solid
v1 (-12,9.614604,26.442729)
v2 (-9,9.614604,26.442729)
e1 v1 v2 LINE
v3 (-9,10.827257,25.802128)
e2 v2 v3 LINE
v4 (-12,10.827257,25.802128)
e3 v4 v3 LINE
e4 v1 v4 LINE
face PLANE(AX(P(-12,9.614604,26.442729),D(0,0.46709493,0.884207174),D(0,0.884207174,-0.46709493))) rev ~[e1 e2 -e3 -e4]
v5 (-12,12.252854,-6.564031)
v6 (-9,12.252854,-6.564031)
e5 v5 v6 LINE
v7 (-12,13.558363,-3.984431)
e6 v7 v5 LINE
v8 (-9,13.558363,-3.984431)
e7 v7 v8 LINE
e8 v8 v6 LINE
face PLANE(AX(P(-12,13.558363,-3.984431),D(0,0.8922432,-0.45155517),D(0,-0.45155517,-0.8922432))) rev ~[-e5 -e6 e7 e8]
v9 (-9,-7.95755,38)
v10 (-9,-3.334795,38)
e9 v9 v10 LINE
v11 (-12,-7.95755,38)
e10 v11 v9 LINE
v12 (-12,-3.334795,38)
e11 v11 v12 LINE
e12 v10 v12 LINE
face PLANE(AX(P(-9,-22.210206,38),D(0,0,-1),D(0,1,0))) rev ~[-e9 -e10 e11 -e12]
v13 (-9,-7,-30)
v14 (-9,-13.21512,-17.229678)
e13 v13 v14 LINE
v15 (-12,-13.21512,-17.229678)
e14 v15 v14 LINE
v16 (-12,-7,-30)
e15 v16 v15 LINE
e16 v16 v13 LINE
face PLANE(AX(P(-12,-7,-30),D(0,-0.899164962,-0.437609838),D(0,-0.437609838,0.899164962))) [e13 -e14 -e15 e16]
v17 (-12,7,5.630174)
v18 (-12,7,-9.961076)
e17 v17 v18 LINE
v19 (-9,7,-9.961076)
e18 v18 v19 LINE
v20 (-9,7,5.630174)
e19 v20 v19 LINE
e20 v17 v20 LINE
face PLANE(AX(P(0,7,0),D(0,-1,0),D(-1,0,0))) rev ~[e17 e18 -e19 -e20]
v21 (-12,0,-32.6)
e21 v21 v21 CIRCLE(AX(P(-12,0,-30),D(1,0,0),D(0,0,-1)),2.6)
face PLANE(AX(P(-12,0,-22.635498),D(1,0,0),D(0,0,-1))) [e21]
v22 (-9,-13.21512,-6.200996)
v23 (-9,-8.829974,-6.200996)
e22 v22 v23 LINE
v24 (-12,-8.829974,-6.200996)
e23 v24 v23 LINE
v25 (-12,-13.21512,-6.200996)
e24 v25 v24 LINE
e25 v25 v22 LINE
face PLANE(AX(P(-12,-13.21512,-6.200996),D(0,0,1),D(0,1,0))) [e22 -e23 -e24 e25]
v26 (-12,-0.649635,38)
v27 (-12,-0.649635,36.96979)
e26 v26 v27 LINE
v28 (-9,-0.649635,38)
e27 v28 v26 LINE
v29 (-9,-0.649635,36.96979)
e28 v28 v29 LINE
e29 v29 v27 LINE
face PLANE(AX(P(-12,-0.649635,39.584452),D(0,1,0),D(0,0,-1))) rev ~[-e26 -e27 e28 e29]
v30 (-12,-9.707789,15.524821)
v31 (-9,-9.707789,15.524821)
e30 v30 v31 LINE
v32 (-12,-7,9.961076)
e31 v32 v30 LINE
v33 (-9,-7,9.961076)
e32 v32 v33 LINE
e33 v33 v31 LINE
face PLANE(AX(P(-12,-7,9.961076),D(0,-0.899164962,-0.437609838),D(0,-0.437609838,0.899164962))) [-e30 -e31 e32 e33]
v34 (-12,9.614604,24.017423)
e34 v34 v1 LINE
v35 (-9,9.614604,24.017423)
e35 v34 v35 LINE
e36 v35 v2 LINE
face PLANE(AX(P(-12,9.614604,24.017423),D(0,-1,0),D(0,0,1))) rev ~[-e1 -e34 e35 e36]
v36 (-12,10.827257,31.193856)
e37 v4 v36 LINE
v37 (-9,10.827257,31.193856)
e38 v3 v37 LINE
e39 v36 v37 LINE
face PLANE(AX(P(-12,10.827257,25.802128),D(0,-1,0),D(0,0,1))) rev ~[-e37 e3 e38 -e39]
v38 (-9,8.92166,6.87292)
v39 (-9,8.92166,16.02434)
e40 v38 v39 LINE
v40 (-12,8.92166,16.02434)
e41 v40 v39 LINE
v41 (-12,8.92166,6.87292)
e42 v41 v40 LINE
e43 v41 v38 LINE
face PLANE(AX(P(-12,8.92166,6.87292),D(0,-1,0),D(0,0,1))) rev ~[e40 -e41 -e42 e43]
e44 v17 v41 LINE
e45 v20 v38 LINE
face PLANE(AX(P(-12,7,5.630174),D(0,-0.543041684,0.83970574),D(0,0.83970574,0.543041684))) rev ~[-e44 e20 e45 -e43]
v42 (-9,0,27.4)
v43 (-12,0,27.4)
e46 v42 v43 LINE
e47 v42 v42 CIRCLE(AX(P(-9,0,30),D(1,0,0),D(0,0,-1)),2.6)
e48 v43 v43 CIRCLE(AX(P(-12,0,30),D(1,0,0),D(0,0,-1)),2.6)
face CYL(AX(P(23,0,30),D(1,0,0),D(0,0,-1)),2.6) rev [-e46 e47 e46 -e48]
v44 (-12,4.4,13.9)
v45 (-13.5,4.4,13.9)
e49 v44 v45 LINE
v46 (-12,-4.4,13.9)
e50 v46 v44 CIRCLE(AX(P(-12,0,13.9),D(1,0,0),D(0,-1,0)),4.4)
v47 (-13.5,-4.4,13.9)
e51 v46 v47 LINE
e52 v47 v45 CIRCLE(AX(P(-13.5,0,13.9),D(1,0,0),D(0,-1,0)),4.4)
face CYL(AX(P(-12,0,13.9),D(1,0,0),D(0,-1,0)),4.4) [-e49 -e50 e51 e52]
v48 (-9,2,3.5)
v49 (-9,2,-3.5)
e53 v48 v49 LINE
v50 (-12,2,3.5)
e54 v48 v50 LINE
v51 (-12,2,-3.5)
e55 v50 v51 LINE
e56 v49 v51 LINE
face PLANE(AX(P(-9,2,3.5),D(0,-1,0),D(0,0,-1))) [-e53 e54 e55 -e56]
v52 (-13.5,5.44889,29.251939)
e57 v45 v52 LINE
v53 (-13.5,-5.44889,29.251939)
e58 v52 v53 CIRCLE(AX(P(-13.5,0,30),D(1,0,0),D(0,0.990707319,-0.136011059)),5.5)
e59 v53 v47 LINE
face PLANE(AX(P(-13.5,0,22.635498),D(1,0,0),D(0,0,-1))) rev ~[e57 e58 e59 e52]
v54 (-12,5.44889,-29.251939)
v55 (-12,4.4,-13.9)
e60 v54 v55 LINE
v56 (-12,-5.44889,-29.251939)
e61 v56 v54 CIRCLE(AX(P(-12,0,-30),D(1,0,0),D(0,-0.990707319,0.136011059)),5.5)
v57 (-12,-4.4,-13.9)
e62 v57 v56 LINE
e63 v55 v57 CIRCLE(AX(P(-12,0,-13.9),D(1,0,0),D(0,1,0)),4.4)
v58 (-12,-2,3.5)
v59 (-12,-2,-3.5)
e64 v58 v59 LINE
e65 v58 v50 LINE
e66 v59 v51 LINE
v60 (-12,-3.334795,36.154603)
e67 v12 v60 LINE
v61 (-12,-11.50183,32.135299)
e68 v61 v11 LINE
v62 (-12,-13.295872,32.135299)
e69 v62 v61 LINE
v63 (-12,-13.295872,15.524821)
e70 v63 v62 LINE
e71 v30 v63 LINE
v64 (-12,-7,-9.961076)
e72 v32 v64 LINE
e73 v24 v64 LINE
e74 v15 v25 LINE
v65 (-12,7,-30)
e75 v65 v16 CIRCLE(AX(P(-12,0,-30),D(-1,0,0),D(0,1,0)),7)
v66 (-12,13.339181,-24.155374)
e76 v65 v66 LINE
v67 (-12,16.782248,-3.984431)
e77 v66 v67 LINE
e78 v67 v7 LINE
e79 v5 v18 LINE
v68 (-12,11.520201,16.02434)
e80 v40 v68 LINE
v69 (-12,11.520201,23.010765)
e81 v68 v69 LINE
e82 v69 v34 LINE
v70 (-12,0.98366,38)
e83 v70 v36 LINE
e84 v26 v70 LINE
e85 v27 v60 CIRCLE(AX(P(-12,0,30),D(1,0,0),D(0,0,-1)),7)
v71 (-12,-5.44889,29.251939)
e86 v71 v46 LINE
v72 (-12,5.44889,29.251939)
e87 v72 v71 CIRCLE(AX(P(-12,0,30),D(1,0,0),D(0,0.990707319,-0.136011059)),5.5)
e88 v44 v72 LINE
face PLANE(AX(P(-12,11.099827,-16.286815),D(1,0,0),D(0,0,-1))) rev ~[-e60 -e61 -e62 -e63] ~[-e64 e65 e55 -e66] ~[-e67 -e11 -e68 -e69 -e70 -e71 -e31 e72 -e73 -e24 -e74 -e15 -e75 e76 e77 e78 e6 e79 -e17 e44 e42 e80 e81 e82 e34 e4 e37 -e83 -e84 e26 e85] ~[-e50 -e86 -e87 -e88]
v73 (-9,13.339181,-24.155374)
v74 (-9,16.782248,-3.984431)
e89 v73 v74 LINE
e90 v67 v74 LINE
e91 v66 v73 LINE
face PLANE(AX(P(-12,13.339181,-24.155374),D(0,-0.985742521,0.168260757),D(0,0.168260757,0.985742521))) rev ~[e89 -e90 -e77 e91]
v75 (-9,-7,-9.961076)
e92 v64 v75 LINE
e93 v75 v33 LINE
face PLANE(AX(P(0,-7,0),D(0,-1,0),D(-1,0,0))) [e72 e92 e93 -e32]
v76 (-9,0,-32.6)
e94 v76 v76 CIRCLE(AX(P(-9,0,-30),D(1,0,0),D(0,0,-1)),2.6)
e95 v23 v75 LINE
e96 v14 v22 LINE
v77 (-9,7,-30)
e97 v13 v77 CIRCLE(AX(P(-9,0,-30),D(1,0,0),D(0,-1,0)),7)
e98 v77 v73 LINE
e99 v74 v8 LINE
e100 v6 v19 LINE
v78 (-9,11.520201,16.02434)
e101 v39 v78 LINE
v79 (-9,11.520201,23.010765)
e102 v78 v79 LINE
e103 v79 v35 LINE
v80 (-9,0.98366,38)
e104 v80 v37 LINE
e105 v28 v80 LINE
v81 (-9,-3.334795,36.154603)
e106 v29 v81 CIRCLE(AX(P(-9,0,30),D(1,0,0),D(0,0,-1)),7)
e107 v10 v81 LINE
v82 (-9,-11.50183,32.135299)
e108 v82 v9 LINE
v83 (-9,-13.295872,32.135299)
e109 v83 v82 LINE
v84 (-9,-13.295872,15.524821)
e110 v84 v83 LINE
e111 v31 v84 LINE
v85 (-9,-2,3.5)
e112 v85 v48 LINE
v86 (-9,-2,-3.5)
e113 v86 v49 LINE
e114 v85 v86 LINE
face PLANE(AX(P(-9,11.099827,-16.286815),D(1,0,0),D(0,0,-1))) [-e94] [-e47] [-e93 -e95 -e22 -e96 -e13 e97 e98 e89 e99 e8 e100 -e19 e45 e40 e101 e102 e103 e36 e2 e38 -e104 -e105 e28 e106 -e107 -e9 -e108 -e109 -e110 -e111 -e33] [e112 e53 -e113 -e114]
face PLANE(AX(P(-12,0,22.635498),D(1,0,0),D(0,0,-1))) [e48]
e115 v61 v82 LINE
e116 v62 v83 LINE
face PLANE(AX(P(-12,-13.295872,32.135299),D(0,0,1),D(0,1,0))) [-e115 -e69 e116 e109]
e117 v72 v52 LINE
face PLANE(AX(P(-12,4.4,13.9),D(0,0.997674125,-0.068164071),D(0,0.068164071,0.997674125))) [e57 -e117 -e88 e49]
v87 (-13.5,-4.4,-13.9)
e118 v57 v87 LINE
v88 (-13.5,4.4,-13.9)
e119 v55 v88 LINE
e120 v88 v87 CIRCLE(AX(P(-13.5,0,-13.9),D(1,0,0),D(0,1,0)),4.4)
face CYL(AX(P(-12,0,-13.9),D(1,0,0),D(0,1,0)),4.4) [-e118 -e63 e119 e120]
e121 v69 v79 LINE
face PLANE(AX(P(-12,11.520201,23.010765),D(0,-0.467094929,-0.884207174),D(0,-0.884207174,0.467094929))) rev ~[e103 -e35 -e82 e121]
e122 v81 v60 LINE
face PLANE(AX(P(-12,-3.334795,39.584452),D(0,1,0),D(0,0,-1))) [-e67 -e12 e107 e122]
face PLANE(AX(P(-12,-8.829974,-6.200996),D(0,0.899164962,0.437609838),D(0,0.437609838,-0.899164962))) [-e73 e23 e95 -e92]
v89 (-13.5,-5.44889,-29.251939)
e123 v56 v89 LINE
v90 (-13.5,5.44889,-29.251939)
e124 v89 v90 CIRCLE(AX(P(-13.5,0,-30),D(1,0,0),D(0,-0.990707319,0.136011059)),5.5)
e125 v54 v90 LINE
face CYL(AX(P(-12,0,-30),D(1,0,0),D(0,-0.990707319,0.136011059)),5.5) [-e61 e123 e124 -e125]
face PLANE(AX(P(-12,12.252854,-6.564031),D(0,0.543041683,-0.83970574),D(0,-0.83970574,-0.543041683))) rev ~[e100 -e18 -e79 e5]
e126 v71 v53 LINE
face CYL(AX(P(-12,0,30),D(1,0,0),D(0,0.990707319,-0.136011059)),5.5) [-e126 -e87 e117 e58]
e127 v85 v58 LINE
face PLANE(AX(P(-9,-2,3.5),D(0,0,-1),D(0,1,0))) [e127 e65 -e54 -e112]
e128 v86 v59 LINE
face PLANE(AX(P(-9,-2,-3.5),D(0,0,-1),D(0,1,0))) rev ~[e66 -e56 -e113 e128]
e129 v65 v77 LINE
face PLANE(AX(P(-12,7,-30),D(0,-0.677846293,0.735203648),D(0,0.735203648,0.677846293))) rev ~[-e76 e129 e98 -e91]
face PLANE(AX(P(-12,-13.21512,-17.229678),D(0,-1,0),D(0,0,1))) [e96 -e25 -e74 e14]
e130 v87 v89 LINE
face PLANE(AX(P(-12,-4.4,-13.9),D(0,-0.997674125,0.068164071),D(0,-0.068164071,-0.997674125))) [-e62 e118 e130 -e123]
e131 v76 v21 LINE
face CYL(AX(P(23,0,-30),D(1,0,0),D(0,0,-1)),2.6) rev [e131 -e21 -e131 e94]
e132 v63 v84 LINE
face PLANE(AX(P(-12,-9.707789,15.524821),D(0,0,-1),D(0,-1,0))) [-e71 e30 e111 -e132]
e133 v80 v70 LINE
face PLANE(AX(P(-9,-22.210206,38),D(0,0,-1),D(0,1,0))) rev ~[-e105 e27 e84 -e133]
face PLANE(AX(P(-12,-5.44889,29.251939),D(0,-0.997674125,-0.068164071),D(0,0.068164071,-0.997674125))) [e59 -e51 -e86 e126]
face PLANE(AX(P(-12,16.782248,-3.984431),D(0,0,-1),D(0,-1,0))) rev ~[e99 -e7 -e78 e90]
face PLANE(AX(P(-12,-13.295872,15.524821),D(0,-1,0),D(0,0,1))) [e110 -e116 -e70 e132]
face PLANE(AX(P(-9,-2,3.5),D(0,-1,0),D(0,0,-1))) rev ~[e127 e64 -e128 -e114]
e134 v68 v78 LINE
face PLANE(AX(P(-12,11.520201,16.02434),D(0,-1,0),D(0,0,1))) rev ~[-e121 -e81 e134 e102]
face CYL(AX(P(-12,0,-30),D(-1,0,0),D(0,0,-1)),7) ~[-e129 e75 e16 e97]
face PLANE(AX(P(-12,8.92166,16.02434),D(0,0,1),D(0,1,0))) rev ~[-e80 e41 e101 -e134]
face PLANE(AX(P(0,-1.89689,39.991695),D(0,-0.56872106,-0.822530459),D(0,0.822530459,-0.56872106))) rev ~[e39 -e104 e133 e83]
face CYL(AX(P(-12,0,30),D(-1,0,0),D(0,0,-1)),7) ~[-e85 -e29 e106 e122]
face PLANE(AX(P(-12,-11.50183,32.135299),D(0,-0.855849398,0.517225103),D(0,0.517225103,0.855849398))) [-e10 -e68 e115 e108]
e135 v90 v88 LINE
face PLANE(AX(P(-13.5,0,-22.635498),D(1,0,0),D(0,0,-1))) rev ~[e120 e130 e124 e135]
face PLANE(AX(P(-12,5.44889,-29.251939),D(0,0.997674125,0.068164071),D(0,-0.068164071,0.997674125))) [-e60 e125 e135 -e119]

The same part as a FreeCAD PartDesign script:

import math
import FreeCAD as App
import Part
import Sketcher

V = App.Vector

doc = App.newDocument("Part")
params = doc.addObject("Spreadsheet::Sheet", "Params")
for row, (alias, value) in enumerate([
    ("sketch1_width", "3 mm"),
    ("sketch1_width2", "18 mm"),
    ("sketch1_height", "60 mm"),
    ("sketch1_height2", "28.5 mm"),
    ("pad1_length", "7 mm"),
    ("pad1_length2", "7 mm"),
    ("sketch2_diameter", "14 mm"),
    ("pad2_length", "3 mm"),
    ("sketch3_diameter", "5.2 mm"),
    ("pad3_length", "3 mm"),
    ("sketch6_width", "2 mm"),
    ("sketch6_height", "6 mm"),
    ("pad4_length", "25 mm"),
    ("sketch7_diameter", "3 mm"),
    ("pocket3_length", "23 mm"),
    ("sketch8_width", "2 mm"),
    ("sketch8_height", "6 mm"),
    ("pad5_length", "11 mm"),
    ("pocket4_length", "10 mm"),
    ("pocket5_length", "22 mm"),
    ("sketch11_radius", "5.5 mm"),
    ("sketch11_radius2", "4.4 mm"),
    ("pad6_length", "1.5 mm"),
    ("sketch12_width", "50 mm"),
    ("sketch12_height", "12 mm"),
    ("pocket6_length", "22 mm"),
    ("sketch13_width", "4 mm"),
    ("sketch13_height", "7 mm"),
    ("pocket7_length", "22 mm"),
], start=1):
    params.set(f"A{row}", alias)
    params.set(f"B{row}", "=" + value)
    params.setAlias(f"B{row}", alias)

body = doc.addObject("PartDesign::Body", "Body")

sketch1 = body.newObject("Sketcher::SketchObject", "Sketch")
sketch1.AttachmentSupport = (doc.getObject("XZ_Plane"), [""])
sketch1.MapMode = "FlatFace"
sketch1.addGeometry(Part.LineSegment(V(12, 30, 0), V(12, -30, 0)), False)
sketch1.addGeometry(Part.LineSegment(V(12, -30, 0), V(9, -30, 0)), False)
sketch1.addGeometry(Part.LineSegment(V(9, -30, 0), V(9, -1.5, 0)), False)
sketch1.addGeometry(Part.LineSegment(V(9, -1.5, 0), V(-9, -1.5, 0)), False)
sketch1.addGeometry(Part.LineSegment(V(-9, -1.5, 0), V(-9, -30, 0)), False)
sketch1.addGeometry(Part.LineSegment(V(-9, -30, 0), V(-12, -30, 0)), False)
sketch1.addGeometry(Part.LineSegment(V(-12, -30, 0), V(-12, 30, 0)), False)
sketch1.addGeometry(Part.LineSegment(V(-12, 30, 0), V(-9, 30, 0)), False)
sketch1.addGeometry(Part.LineSegment(V(-9, 30, 0), V(-9, 1.5, 0)), False)
sketch1.addGeometry(Part.LineSegment(V(-9, 1.5, 0), V(9, 1.5, 0)), False)
sketch1.addGeometry(Part.LineSegment(V(9, 1.5, 0), V(9, 30, 0)), False)
sketch1.addGeometry(Part.LineSegment(V(9, 30, 0), V(12, 30, 0)), False)
sketch1.addConstraint(Sketcher.Constraint("Coincident", 0, 2, 1, 1))
sketch1.addConstraint(Sketcher.Constraint("Coincident", 1, 2, 2, 1))
sketch1.addConstraint(Sketcher.Constraint("Coincident", 2, 2, 3, 1))
sketch1.addConstraint(Sketcher.Constraint("Coincident", 3, 2, 4, 1))
sketch1.addConstraint(Sketcher.Constraint("Coincident", 4, 2, 5, 1))
sketch1.addConstraint(Sketcher.Constraint("Coincident", 5, 2, 6, 1))
sketch1.addConstraint(Sketcher.Constraint("Coincident", 6, 2, 7, 1))
sketch1.addConstraint(Sketcher.Constraint("Coincident", 7, 2, 8, 1))
sketch1.addConstraint(Sketcher.Constraint("Coincident", 8, 2, 9, 1))
sketch1.addConstraint(Sketcher.Constraint("Coincident", 9, 2, 10, 1))
sketch1.addConstraint(Sketcher.Constraint("Coincident", 10, 2, 11, 1))
sketch1.addConstraint(Sketcher.Constraint("Coincident", 11, 2, 0, 1))
sketch1.addConstraint(Sketcher.Constraint("Vertical", 0))
sketch1.addConstraint(Sketcher.Constraint("Horizontal", 1))
sketch1.addConstraint(Sketcher.Constraint("Vertical", 2))
sketch1.addConstraint(Sketcher.Constraint("Horizontal", 3))
sketch1.addConstraint(Sketcher.Constraint("Vertical", 4))
sketch1.addConstraint(Sketcher.Constraint("Horizontal", 5))
sketch1.addConstraint(Sketcher.Constraint("Vertical", 6))
sketch1.addConstraint(Sketcher.Constraint("Horizontal", 7))
sketch1.addConstraint(Sketcher.Constraint("Vertical", 8))
sketch1.addConstraint(Sketcher.Constraint("Horizontal", 9))
sketch1.addConstraint(Sketcher.Constraint("Vertical", 10))
sketch1.addConstraint(Sketcher.Constraint("Horizontal", 11))
sketch1.addConstraint(Sketcher.Constraint("Symmetric", 0, 2, 6, 2, -1, 1))
sketch1.addConstraint(Sketcher.Constraint("Symmetric", 2, 2, 8, 2, -1, 1))
sketch1.addConstraint(Sketcher.Constraint("Symmetric", 4, 2, 10, 2, -1, 1))
sketch1.addConstraint(Sketcher.Constraint("Symmetric", 1, 2, 4, 2, -2))
sketch1.addConstraint(Sketcher.Constraint("DistanceX", 1, 2, 1, 1, 3.0))
sketch1.addConstraint(Sketcher.Constraint("DistanceX", 3, 2, 3, 1, 18.0))
sketch1.addConstraint(Sketcher.Constraint("DistanceY", 0, 2, 0, 1, 60.0))
sketch1.addConstraint(Sketcher.Constraint("DistanceY", 2, 1, 2, 2, 28.5))
sketch1.setExpression("Constraints[28]", "Params.sketch1_width")
sketch1.setExpression("Constraints[29]", "Params.sketch1_width2")
sketch1.setExpression("Constraints[30]", "Params.sketch1_height")
sketch1.setExpression("Constraints[31]", "Params.sketch1_height2")
pad1 = body.newObject("PartDesign::Pad", "Pad")
pad1.Profile = sketch1
pad1.Type = "TwoLengths"
pad1.setExpression("Length", "Params.pad1_length")
pad1.setExpression("Length2", "Params.pad1_length2")
pad1.Reversed = True

sketch2 = body.newObject("Sketcher::SketchObject", "Sketch001")
sketch2.AttachmentSupport = (doc.getObject("YZ_Plane"), [""])
sketch2.MapMode = "FlatFace"
sketch2.AttachmentOffset = App.Placement(V(0, 0, 12), App.Rotation())
sketch2.addGeometry(Part.Circle(V(0, 30, 0), V(0, 0, 1), 7), False)
sketch2.addGeometry(Part.Circle(V(0, -30, 0), V(0, 0, 1), 7), False)
sketch2.addConstraint(Sketcher.Constraint("Equal", 0, 1))
sketch2.addConstraint(Sketcher.Constraint("Symmetric", 0, 3, 1, 3, -1, 1))
sketch2.addConstraint(Sketcher.Constraint("PointOnObject", 0, 3, -2))
sketch2.addConstraint(Sketcher.Constraint("Diameter", 0, 14.0))
sketch2.addConstraint(Sketcher.Constraint("DistanceY", -1, 1, 0, 3, 30.0))
sketch2.setExpression("Constraints[3]", "Params.sketch2_diameter")
pad2 = body.newObject("PartDesign::Pad", "Pad001")
pad2.Profile = sketch2
pad2.setExpression("Length", "Params.pad2_length")
pad2.Reversed = True
doc.recompute()

mirrored = body.newObject("PartDesign::Mirrored", "Mirrored")
mirrored.Originals = [pad2]
mirrored.MirrorPlane = (doc.getObject("YZ_Plane"), [""])
body.Tip = mirrored

sketch3 = body.newObject("Sketcher::SketchObject", "Sketch002")
sketch3.AttachmentSupport = (doc.getObject("YZ_Plane"), [""])
sketch3.MapMode = "FlatFace"
sketch3.addGeometry(Part.Circle(V(0, -30, 0), V(0, 0, 1), 2.6), False)
sketch3.addGeometry(Part.Circle(V(0, 30, 0), V(0, 0, 1), 2.6), False)
sketch3.addConstraint(Sketcher.Constraint("Equal", 0, 1))
sketch3.addConstraint(Sketcher.Constraint("Symmetric", 0, 3, 1, 3, -1, 1))
sketch3.addConstraint(Sketcher.Constraint("PointOnObject", 0, 3, -2))
sketch3.addConstraint(Sketcher.Constraint("Diameter", 0, 5.2))
sketch3.addConstraint(Sketcher.Constraint("DistanceY", 0, 3, -1, 1, 30.0))
sketch3.setExpression("Constraints[3]", "Params.sketch3_diameter")
pocket1 = body.newObject("PartDesign::Pocket", "Pocket")
pocket1.Profile = sketch3
pocket1.Type = "ThroughAll"
pocket1.Midplane = True

sketch4 = body.newObject("Sketcher::SketchObject", "Sketch003")
sketch4.AttachmentSupport = (doc.getObject("YZ_Plane"), [""])
sketch4.MapMode = "FlatFace"
sketch4.AttachmentOffset = App.Placement(V(0, 0, -12), App.Rotation())
sketch4.addGeometry(Part.LineSegment(V(13.3, -24.2, 0), V(7, -30, 0)), False)
sketch4.addGeometry(Part.LineSegment(V(7, -30, 0), V(7, -10, 0)), False)
sketch4.addGeometry(Part.LineSegment(V(7, -10, 0), V(12.3, -6.6, 0)), False)
sketch4.addGeometry(Part.LineSegment(V(12.3, -6.6, 0), V(13.6, -4, 0)), False)
sketch4.addGeometry(Part.LineSegment(V(13.6, -4, 0), V(16.8, -4, 0)), False)
sketch4.addGeometry(Part.LineSegment(V(16.8, -4, 0), V(13.3, -24.2, 0)), False)
sketch4.addGeometry(Part.LineSegment(V(8.9, 6.9, 0), V(7, 5.6, 0)), False)
sketch4.addGeometry(Part.LineSegment(V(7, 5.6, 0), V(6.4, 5.6, 0)), False)
sketch4.addGeometry(Part.LineSegment(V(6.4, 5.6, 0), V(6.4, 30.6, 0)), False)
sketch4.addGeometry(Part.LineSegment(V(6.4, 30.6, 0), V(3.2, 35.5, 0)), False)
sketch4.addGeometry(Part.LineSegment(V(3.2, 35.5, 0), V(-0.6, 35.5, 0)), False)
sketch4.addGeometry(Part.LineSegment(V(-0.6, 35.5, 0), V(-0.6, 39.6, 0)), False)
sketch4.addGeometry(Part.LineSegment(V(-0.6, 39.6, 0), V(2.2, 39.6, 0)), False)
sketch4.addGeometry(Part.LineSegment(V(2.2, 39.6, 0), V(10.8, 33.6, 0)), False)
sketch4.addGeometry(Part.LineSegment(V(10.8, 33.6, 0), V(10.8, 25.8, 0)), False)
sketch4.addGeometry(Part.LineSegment(V(10.8, 25.8, 0), V(9.6, 26.4, 0)), False)
sketch4.addGeometry(Part.LineSegment(V(9.6, 26.4, 0), V(9.6, 24, 0)), False)
sketch4.addGeometry(Part.LineSegment(V(9.6, 24, 0), V(11.5, 23, 0)), False)
sketch4.addGeometry(Part.LineSegment(V(11.5, 23, 0), V(11.5, 16, 0)), False)
sketch4.addGeometry(Part.LineSegment(V(11.5, 16, 0), V(8.9, 16, 0)), False)
sketch4.addGeometry(Part.LineSegment(V(8.9, 16, 0), V(8.9, 6.9, 0)), False)
sketch4.addGeometry(Part.LineSegment(V(-7, -30, 0), V(-13.2, -17.2, 0)), False)
sketch4.addGeometry(Part.LineSegment(V(-13.2, -17.2, 0), V(-13.2, -6.2, 0)), False)
sketch4.addGeometry(Part.LineSegment(V(-13.2, -6.2, 0), V(-8.8, -6.2, 0)), False)
sketch4.addGeometry(Part.LineSegment(V(-8.8, -6.2, 0), V(-7, -10, 0)), False)
sketch4.addGeometry(Part.LineSegment(V(-7, -10, 0), V(-7, -30, 0)), False)
sketch4.addGeometry(Part.LineSegment(V(-7, 10, 0), V(-9.7, 15.5, 0)), False)
sketch4.addGeometry(Part.LineSegment(V(-9.7, 15.5, 0), V(-13.3, 15.5, 0)), False)
sketch4.addGeometry(Part.LineSegment(V(-13.3, 15.5, 0), V(-13.3, 32.1, 0)), False)
sketch4.addGeometry(Part.LineSegment(V(-13.3, 32.1, 0), V(-11.5, 32.1, 0)), False)
sketch4.addGeometry(Part.LineSegment(V(-11.5, 32.1, 0), V(-7, 39.6, 0)), False)
sketch4.addGeometry(Part.LineSegment(V(-7, 39.6, 0), V(-3.3, 39.6, 0)), False)
sketch4.addGeometry(Part.LineSegment(V(-3.3, 39.6, 0), V(-3.3, 35.5, 0)), False)
sketch4.addGeometry(Part.LineSegment(V(-3.3, 35.5, 0), V(-5.6, 31.7, 0)), False)
sketch4.addGeometry(Part.LineSegment(V(-5.6, 31.7, 0), V(-5.6, 10, 0)), False)
sketch4.addGeometry(Part.LineSegment(V(-5.6, 10, 0), V(-7, 10, 0)), False)
sketch4.addConstraint(Sketcher.Constraint("Coincident", 0, 2, 1, 1))
sketch4.addConstraint(Sketcher.Constraint("Coincident", 1, 2, 2, 1))
sketch4.addConstraint(Sketcher.Constraint("Coincident", 2, 2, 3, 1))
sketch4.addConstraint(Sketcher.Constraint("Coincident", 3, 2, 4, 1))
sketch4.addConstraint(Sketcher.Constraint("Coincident", 4, 2, 5, 1))
sketch4.addConstraint(Sketcher.Constraint("Coincident", 5, 2, 0, 1))
sketch4.addConstraint(Sketcher.Constraint("Coincident", 6, 2, 7, 1))
sketch4.addConstraint(Sketcher.Constraint("Coincident", 7, 2, 8, 1))
sketch4.addConstraint(Sketcher.Constraint("Coincident", 8, 2, 9, 1))
sketch4.addConstraint(Sketcher.Constraint("Coincident", 9, 2, 10, 1))
sketch4.addConstraint(Sketcher.Constraint("Coincident", 10, 2, 11, 1))
sketch4.addConstraint(Sketcher.Constraint("Coincident", 11, 2, 12, 1))
sketch4.addConstraint(Sketcher.Constraint("Coincident", 12, 2, 13, 1))
sketch4.addConstraint(Sketcher.Constraint("Coincident", 13, 2, 14, 1))
sketch4.addConstraint(Sketcher.Constraint("Coincident", 14, 2, 15, 1))
sketch4.addConstraint(Sketcher.Constraint("Coincident", 15, 2, 16, 1))
sketch4.addConstraint(Sketcher.Constraint("Coincident", 16, 2, 17, 1))
sketch4.addConstraint(Sketcher.Constraint("Coincident", 17, 2, 18, 1))
sketch4.addConstraint(Sketcher.Constraint("Coincident", 18, 2, 19, 1))
sketch4.addConstraint(Sketcher.Constraint("Coincident", 19, 2, 20, 1))
sketch4.addConstraint(Sketcher.Constraint("Coincident", 20, 2, 6, 1))
sketch4.addConstraint(Sketcher.Constraint("Coincident", 21, 2, 22, 1))
sketch4.addConstraint(Sketcher.Constraint("Coincident", 22, 2, 23, 1))
sketch4.addConstraint(Sketcher.Constraint("Coincident", 23, 2, 24, 1))
sketch4.addConstraint(Sketcher.Constraint("Coincident", 24, 2, 25, 1))
sketch4.addConstraint(Sketcher.Constraint("Coincident", 25, 2, 21, 1))
sketch4.addConstraint(Sketcher.Constraint("Coincident", 26, 2, 27, 1))
sketch4.addConstraint(Sketcher.Constraint("Coincident", 27, 2, 28, 1))
sketch4.addConstraint(Sketcher.Constraint("Coincident", 28, 2, 29, 1))
sketch4.addConstraint(Sketcher.Constraint("Coincident", 29, 2, 30, 1))
sketch4.addConstraint(Sketcher.Constraint("Coincident", 30, 2, 31, 1))
sketch4.addConstraint(Sketcher.Constraint("Coincident", 31, 2, 32, 1))
sketch4.addConstraint(Sketcher.Constraint("Coincident", 32, 2, 33, 1))
sketch4.addConstraint(Sketcher.Constraint("Coincident", 33, 2, 34, 1))
sketch4.addConstraint(Sketcher.Constraint("Coincident", 34, 2, 35, 1))
sketch4.addConstraint(Sketcher.Constraint("Coincident", 35, 2, 26, 1))
sketch4.addConstraint(Sketcher.Constraint("Vertical", 1))
sketch4.addConstraint(Sketcher.Constraint("Horizontal", 4))
sketch4.addConstraint(Sketcher.Constraint("Horizontal", 7))
sketch4.addConstraint(Sketcher.Constraint("Vertical", 8))
sketch4.addConstraint(Sketcher.Constraint("Horizontal", 10))
sketch4.addConstraint(Sketcher.Constraint("Vertical", 11))
sketch4.addConstraint(Sketcher.Constraint("Horizontal", 12))
sketch4.addConstraint(Sketcher.Constraint("Vertical", 14))
sketch4.addConstraint(Sketcher.Constraint("Vertical", 16))
sketch4.addConstraint(Sketcher.Constraint("Vertical", 18))
sketch4.addConstraint(Sketcher.Constraint("Horizontal", 19))
sketch4.addConstraint(Sketcher.Constraint("Vertical", 20))
sketch4.addConstraint(Sketcher.Constraint("Vertical", 22))
sketch4.addConstraint(Sketcher.Constraint("Horizontal", 23))
sketch4.addConstraint(Sketcher.Constraint("Vertical", 25))
sketch4.addConstraint(Sketcher.Constraint("Horizontal", 27))
sketch4.addConstraint(Sketcher.Constraint("Vertical", 28))
sketch4.addConstraint(Sketcher.Constraint("Horizontal", 29))
sketch4.addConstraint(Sketcher.Constraint("Horizontal", 31))
sketch4.addConstraint(Sketcher.Constraint("Vertical", 32))
sketch4.addConstraint(Sketcher.Constraint("Vertical", 34))
sketch4.addConstraint(Sketcher.Constraint("Horizontal", 35))
sketch4.addConstraint(Sketcher.Constraint("Symmetric", 1, 2, 35, 2, -1, 1))
sketch4.addConstraint(Sketcher.Constraint("Symmetric", 1, 2, 24, 2, -2))
sketch4.addConstraint(Sketcher.Constraint("Parallel", 2, 6))
sketch4.addConstraint(Sketcher.Constraint("Perpendicular", 6, 9))
sketch4.addConstraint(Sketcher.Constraint("Parallel", 15, 17))
sketch4.addConstraint(Sketcher.Constraint("Parallel", 21, 24))
sketch4.addConstraint(Sketcher.Constraint("Parallel", 24, 26))
sketch4.addConstraint(Sketcher.Constraint("Parallel", 30, 33))
sketch4.addConstraint(Sketcher.Constraint("Horizontal", 0, 2, 25, 2))
sketch4.addConstraint(Sketcher.Constraint("Horizontal", 12, 2, 30, 2))
sketch4.addConstraint(Sketcher.Constraint("Horizontal", 10, 2, 32, 2))
sketch4.addConstraint(Sketcher.Constraint("Vertical", 1, 2, 6, 2))
sketch4.addConstraint(Sketcher.Constraint("Vertical", 25, 2, 30, 2))
sketch4.addConstraint(Sketcher.Constraint("DistanceX", -1, 1, 0, 2, 7.0))
sketch4.addConstraint(Sketcher.Constraint("DistanceY", 0, 2, -1, 1, 30.0))
sketch4.addConstraint(Sketcher.Constraint("DistanceX", 10, 2, 3, 2, 14.207999))
sketch4.addConstraint(Sketcher.Constraint("DistanceX", 19, 2, 19, 1, 2.598542))
sketch4.addConstraint(Sketcher.Constraint("DistanceX", 29, 1, 29, 2, 1.794041))
sketch4.addConstraint(Sketcher.Constraint("DistanceY", 14, 2, 14, 1, 7.823249))
sketch4.addConstraint(Sketcher.Constraint("DistanceY", 20, 2, 20, 1, 9.15142))
sketch4.addConstraint(Sketcher.Constraint("DistanceY", 28, 1, 28, 2, 16.610478))
sketch4.addConstraint(Sketcher.Constraint("DistanceX", -1, 1, 17, 2, 11.520201))
sketch4.addConstraint(Sketcher.Constraint("DistanceY", -1, 1, 28, 2, 32.135299))
sketch4.addConstraint(Sketcher.Constraint("DistanceY", 2, 2, 3, 2, 2.5796))
sketch4.addConstraint(Sketcher.Constraint("DistanceY", 14, 2, 15, 2, 0.640601))
sketch4.addConstraint(Sketcher.Constraint("DistanceY", 21, 2, 1, 2, 7.268602))
sketch4.addConstraint(Sketcher.Constraint("DistanceX", 21, 2, 5, 2, 26.554301))
sketch4.addConstraint(Sketcher.Constraint("DistanceY", 20, 2, 26, 2, 8.6519))
sketch4.addConstraint(Sketcher.Constraint("DistanceX", 33, 2, 10, 2, 4.924501))
sketch4.addConstraint(Sketcher.Constraint("Distance", 2, 6.255589))
sketch4.addConstraint(Sketcher.Constraint("Distance", 3, 2.89114))
sketch4.addConstraint(Sketcher.Constraint("Distance", 5, 20.46269))
sketch4.addConstraint(Sketcher.Constraint("Distance", 6, 2.288492))
sketch4.addConstraint(Sketcher.Constraint("Distance", 26, 6.187679))
sketch4.addConstraint(Sketcher.Constraint("Distance", 33, 4.329529))
sketch4.addConstraint(Sketcher.Constraint("DistanceX", 4, 1, 4, 2, 3.223885))
sketch4.addConstraint(Sketcher.Constraint("DistanceX", 7, 2, 7, 1, 0.590264))
sketch4.addConstraint(Sketcher.Constraint("DistanceX", 10, 2, 10, 1, 3.897813))
sketch4.addConstraint(Sketcher.Constraint("DistanceX", 12, 1, 12, 2, 2.858396))
sketch4.addConstraint(Sketcher.Constraint("DistanceX", 23, 1, 23, 2, 4.385147))
sketch4.addConstraint(Sketcher.Constraint("DistanceX", 27, 2, 27, 1, 3.588082))
sketch4.addConstraint(Sketcher.Constraint("DistanceX", 31, 1, 31, 2, 3.665205))
sketch4.addConstraint(Sketcher.Constraint("DistanceY", 1, 1, 1, 2, 20.038924))
sketch4.addConstraint(Sketcher.Constraint("DistanceY", 8, 1, 8, 2, 24.931513))
sketch4.addConstraint(Sketcher.Constraint("DistanceY", 16, 2, 16, 1, 2.425306))
sketch4.addConstraint(Sketcher.Constraint("DistanceY", 18, 2, 18, 1, 6.986424))
sketch4.addConstraint(Sketcher.Constraint("DistanceY", -1, 1, 15, 2, 26.442729))
sketch4.addConstraint(Sketcher.Constraint("DistanceX", 8, 2, 13, 2, 4.417521))
pad3 = body.newObject("PartDesign::Pad", "Pad002")
pad3.Profile = sketch4
pad3.setExpression("Length", "Params.pad3_length")
doc.recompute()

mirrored2 = body.newObject("PartDesign::Mirrored", "Mirrored001")
mirrored2.Originals = [pad3]
mirrored2.MirrorPlane = (doc.getObject("YZ_Plane"), [""])
body.Tip = mirrored2

sketch5 = body.newObject("Sketcher::SketchObject", "Sketch004")
sketch5.AttachmentSupport = (doc.getObject("XZ_Plane"), [""])
sketch5.MapMode = "FlatFace"
sketch5.AttachmentOffset = App.Placement(V(0, 0, -7), App.Rotation())
sketch5.addGeometry(Part.LineSegment(V(-9, -37, 0), V(-9, 43, 0)), False)
sketch5.addGeometry(Part.LineSegment(V(-9, 43, 0), V(27, 43, 0)), False)
sketch5.addGeometry(Part.LineSegment(V(27, 43, 0), V(27, -37, 0)), False)
sketch5.addGeometry(Part.LineSegment(V(27, -37, 0), V(-9, -37, 0)), False)
sketch5.addConstraint(Sketcher.Constraint("Coincident", 0, 2, 1, 1))
sketch5.addConstraint(Sketcher.Constraint("Coincident", 1, 2, 2, 1))
sketch5.addConstraint(Sketcher.Constraint("Coincident", 2, 2, 3, 1))
sketch5.addConstraint(Sketcher.Constraint("Coincident", 3, 2, 0, 1))
sketch5.addConstraint(Sketcher.Constraint("Vertical", 0))
sketch5.addConstraint(Sketcher.Constraint("Horizontal", 1))
sketch5.addConstraint(Sketcher.Constraint("Vertical", 2))
sketch5.addConstraint(Sketcher.Constraint("Horizontal", 3))
sketch5.addConstraint(Sketcher.Constraint("DistanceX", 0, 2, -1, 1, 9.0))
sketch5.addConstraint(Sketcher.Constraint("DistanceY", 2, 2, -1, 1, 37.0))
sketch5.addConstraint(Sketcher.Constraint("DistanceX", 1, 1, 1, 2, 36.146068))
sketch5.addConstraint(Sketcher.Constraint("DistanceY", 0, 1, 0, 2, 79.881395))
pocket2 = body.newObject("PartDesign::Pocket", "Pocket001")
pocket2.Profile = sketch5
pocket2.Type = "ThroughAll"
pocket2.Midplane = True

sketch6 = body.newObject("Sketcher::SketchObject", "Sketch005")
sketch6.AttachmentSupport = (doc.getObject("YZ_Plane"), [""])
sketch6.MapMode = "FlatFace"
sketch6.AttachmentOffset = App.Placement(V(0, 0, -9), App.Rotation())
sketch6.addGeometry(Part.LineSegment(V(1, 3, 0), V(-1, 3, 0)), False)
sketch6.addGeometry(Part.LineSegment(V(-1, 3, 0), V(-1, -3, 0)), False)
sketch6.addGeometry(Part.LineSegment(V(-1, -3, 0), V(1, -3, 0)), False)
sketch6.addGeometry(Part.LineSegment(V(1, -3, 0), V(1, 3, 0)), False)
sketch6.addConstraint(Sketcher.Constraint("Coincident", 0, 2, 1, 1))
sketch6.addConstraint(Sketcher.Constraint("Coincident", 1, 2, 2, 1))
sketch6.addConstraint(Sketcher.Constraint("Coincident", 2, 2, 3, 1))
sketch6.addConstraint(Sketcher.Constraint("Coincident", 3, 2, 0, 1))
sketch6.addConstraint(Sketcher.Constraint("Horizontal", 0))
sketch6.addConstraint(Sketcher.Constraint("Vertical", 1))
sketch6.addConstraint(Sketcher.Constraint("Horizontal", 2))
sketch6.addConstraint(Sketcher.Constraint("Vertical", 3))
sketch6.addConstraint(Sketcher.Constraint("Symmetric", 0, 2, 2, 2, -1, 1))
sketch6.addConstraint(Sketcher.Constraint("DistanceX", 0, 2, 0, 1, 2.0))
sketch6.addConstraint(Sketcher.Constraint("DistanceY", 1, 2, 1, 1, 6.0))
sketch6.setExpression("Constraints[9]", "Params.sketch6_width")
sketch6.setExpression("Constraints[10]", "Params.sketch6_height")
pad4 = body.newObject("PartDesign::Pad", "Pad003")
pad4.Profile = sketch6
pad4.setExpression("Length", "Params.pad4_length")

sketch7 = body.newObject("Sketcher::SketchObject", "Sketch006")
sketch7.AttachmentSupport = (doc.getObject("XZ_Plane"), [""])
sketch7.MapMode = "FlatFace"
sketch7.AttachmentOffset = App.Placement(V(0, 0, -1), App.Rotation())
sketch7.addGeometry(Part.Circle(V(13, 0, 0), V(0, 0, 1), 1.5), False)
sketch7.addGeometry(Part.Circle(V(5, 0, 0), V(0, 0, 1), 1.5), False)
sketch7.addConstraint(Sketcher.Constraint("Equal", 0, 1))
sketch7.addConstraint(Sketcher.Constraint("PointOnObject", 0, 3, -1))
sketch7.addConstraint(Sketcher.Constraint("PointOnObject", 1, 3, -1))
sketch7.addConstraint(Sketcher.Constraint("Diameter", 0, 3.0))
sketch7.addConstraint(Sketcher.Constraint("DistanceX", -1, 1, 0, 3, 13.0))
sketch7.addConstraint(Sketcher.Constraint("DistanceX", -1, 1, 1, 3, 5.0))
sketch7.setExpression("Constraints[3]", "Params.sketch7_diameter")
pocket3 = body.newObject("PartDesign::Pocket", "Pocket002")
pocket3.Profile = sketch7
pocket3.setExpression("Length", "Params.pocket3_length")
pocket3.Reversed = True

sketch8 = body.newObject("Sketcher::SketchObject", "Sketch007")
sketch8.AttachmentSupport = (doc.getObject("YZ_Plane"), [""])
sketch8.MapMode = "FlatFace"
sketch8.AttachmentOffset = App.Placement(V(0, 0, -9), App.Rotation())
sketch8.addGeometry(Part.LineSegment(V(-1, 3, 0), V(-3, 3, 0)), False)
sketch8.addGeometry(Part.LineSegment(V(-3, 3, 0), V(-3, -3, 0)), False)
sketch8.addGeometry(Part.LineSegment(V(-3, -3, 0), V(-1, -3, 0)), False)
sketch8.addGeometry(Part.LineSegment(V(-1, -3, 0), V(-1, 3, 0)), False)
sketch8.addConstraint(Sketcher.Constraint("Coincident", 0, 2, 1, 1))
sketch8.addConstraint(Sketcher.Constraint("Coincident", 1, 2, 2, 1))
sketch8.addConstraint(Sketcher.Constraint("Coincident", 2, 2, 3, 1))
sketch8.addConstraint(Sketcher.Constraint("Coincident", 3, 2, 0, 1))
sketch8.addConstraint(Sketcher.Constraint("Horizontal", 0))
sketch8.addConstraint(Sketcher.Constraint("Vertical", 1))
sketch8.addConstraint(Sketcher.Constraint("Horizontal", 2))
sketch8.addConstraint(Sketcher.Constraint("Vertical", 3))
sketch8.addConstraint(Sketcher.Constraint("DistanceX", 0, 2, 0, 1, 2.0))
sketch8.addConstraint(Sketcher.Constraint("DistanceY", 1, 2, 1, 1, 6.0))
sketch8.addConstraint(Sketcher.Constraint("DistanceX", 0, 2, -1, 1, 3.0))
sketch8.addConstraint(Sketcher.Constraint("DistanceY", -1, 1, 0, 2, 3.0))
sketch8.setExpression("Constraints[8]", "Params.sketch8_width")
sketch8.setExpression("Constraints[9]", "Params.sketch8_height")
pad5 = body.newObject("PartDesign::Pad", "Pad004")
pad5.Profile = sketch8
pad5.setExpression("Length", "Params.pad5_length")

sketch9 = body.newObject("Sketcher::SketchObject", "Sketch008")
sketch9.AttachmentSupport = (doc.getObject("YZ_Plane"), [""])
sketch9.MapMode = "FlatFace"
sketch9.AttachmentOffset = App.Placement(V(0, 0, -9), App.Rotation())
sketch9.addGeometry(Part.LineSegment(V(21, 49, 0), V(-22, 49, 0)), False)
sketch9.addGeometry(Part.LineSegment(V(-22, 49, 0), V(-22, 38, 0)), False)
sketch9.addGeometry(Part.LineSegment(V(-22, 38, 0), V(21, 38, 0)), False)
sketch9.addGeometry(Part.LineSegment(V(21, 38, 0), V(21, 49, 0)), False)
sketch9.addConstraint(Sketcher.Constraint("Coincident", 0, 2, 1, 1))
sketch9.addConstraint(Sketcher.Constraint("Coincident", 1, 2, 2, 1))
sketch9.addConstraint(Sketcher.Constraint("Coincident", 2, 2, 3, 1))
sketch9.addConstraint(Sketcher.Constraint("Coincident", 3, 2, 0, 1))
sketch9.addConstraint(Sketcher.Constraint("Horizontal", 0))
sketch9.addConstraint(Sketcher.Constraint("Vertical", 1))
sketch9.addConstraint(Sketcher.Constraint("Horizontal", 2))
sketch9.addConstraint(Sketcher.Constraint("Vertical", 3))
sketch9.addConstraint(Sketcher.Constraint("DistanceY", -1, 1, 1, 2, 38.0))
sketch9.addConstraint(Sketcher.Constraint("DistanceY", 1, 2, 1, 1, 10.612589))
sketch9.addConstraint(Sketcher.Constraint("DistanceX", 0, 2, 0, 1, 43.057143))
sketch9.addConstraint(Sketcher.Constraint("DistanceX", 0, 2, -1, 1, 22.210206))
pocket4 = body.newObject("PartDesign::Pocket", "Pocket003")
pocket4.Profile = sketch9
pocket4.setExpression("Length", "Params.pocket4_length")

sketch10 = body.newObject("Sketcher::SketchObject", "Sketch009")
sketch10.AttachmentSupport = (doc.getObject("YZ_Plane"), [""])
sketch10.MapMode = "FlatFace"
sketch10.addGeometry(Part.LineSegment(V(14, 29, 0), V(-2, 40, 0)), False)
sketch10.addGeometry(Part.LineSegment(V(-2, 40, 0), V(14, 40, 0)), False)
sketch10.addGeometry(Part.LineSegment(V(14, 40, 0), V(14, 29, 0)), False)
sketch10.addConstraint(Sketcher.Constraint("Coincident", 0, 2, 1, 1))
sketch10.addConstraint(Sketcher.Constraint("Coincident", 1, 2, 2, 1))
sketch10.addConstraint(Sketcher.Constraint("Coincident", 2, 2, 0, 1))
sketch10.addConstraint(Sketcher.Constraint("Horizontal", 1))
sketch10.addConstraint(Sketcher.Constraint("Vertical", 2))
sketch10.addConstraint(Sketcher.Constraint("DistanceY", 2, 2, 2, 1, 10.876632))
sketch10.addConstraint(Sketcher.Constraint("Distance", 0, 19.124721))
sketch10.addConstraint(Sketcher.Constraint("DistanceX", 0, 2, -1, 1, 1.89689))
sketch10.addConstraint(Sketcher.Constraint("DistanceY", -1, 1, 0, 2, 39.991695))
pocket5 = body.newObject("PartDesign::Pocket", "Pocket004")
pocket5.Profile = sketch10
pocket5.setExpression("Length", "Params.pocket5_length")

sketch11 = body.newObject("Sketcher::SketchObject", "Sketch010")
sketch11.AttachmentSupport = (doc.getObject("YZ_Plane"), [""])
sketch11.MapMode = "FlatFace"
sketch11.AttachmentOffset = App.Placement(V(0, 0, -12), App.Rotation())
sketch11.addGeometry(Part.LineSegment(V(4.4, -13.9, 0), V(5.4, -29.3, 0)), False)
sketch11.addGeometry(Part.ArcOfCircle(Part.Circle(V(0, -30, 0), V(0, 0, 1), 5.5), math.radians(172), math.radians(368)), False)
sketch11.addGeometry(Part.LineSegment(V(-5.4, -29.3, 0), V(-4.4, -13.9, 0)), False)
sketch11.addGeometry(Part.ArcOfCircle(Part.Circle(V(0, -13.9, 0), V(0, 0, 1), 4.4), math.radians(0), math.radians(180)), False)
sketch11.addGeometry(Part.LineSegment(V(-4.4, 13.9, 0), V(-5.4, 29.3, 0)), False)
sketch11.addGeometry(Part.ArcOfCircle(Part.Circle(V(0, 30, 0), V(0, 0, 1), 5.5), math.radians(-8), math.radians(188)), False)
sketch11.addGeometry(Part.LineSegment(V(5.4, 29.3, 0), V(4.4, 13.9, 0)), False)
sketch11.addGeometry(Part.ArcOfCircle(Part.Circle(V(0, 13.9, 0), V(0, 0, 1), 4.4), math.radians(180), math.radians(360)), False)
sketch11.addConstraint(Sketcher.Constraint("Coincident", 0, 2, 1, 2))
sketch11.addConstraint(Sketcher.Constraint("Coincident", 1, 1, 2, 1))
sketch11.addConstraint(Sketcher.Constraint("Coincident", 2, 2, 3, 2))
sketch11.addConstraint(Sketcher.Constraint("Coincident", 3, 1, 0, 1))
sketch11.addConstraint(Sketcher.Constraint("Coincident", 4, 2, 5, 2))
sketch11.addConstraint(Sketcher.Constraint("Coincident", 5, 1, 6, 1))
sketch11.addConstraint(Sketcher.Constraint("Coincident", 6, 2, 7, 2))
sketch11.addConstraint(Sketcher.Constraint("Coincident", 7, 1, 4, 1))
sketch11.addConstraint(Sketcher.Constraint("Equal", 1, 5))
sketch11.addConstraint(Sketcher.Constraint("Equal", 3, 7))
sketch11.addConstraint(Sketcher.Constraint("Symmetric", 1, 3, 5, 3, -1, 1))
sketch11.addConstraint(Sketcher.Constraint("Symmetric", 3, 3, 7, 3, -1, 1))
sketch11.addConstraint(Sketcher.Constraint("Symmetric", 0, 2, 1, 1, -2))
sketch11.addConstraint(Sketcher.Constraint("Symmetric", 2, 2, 3, 1, -2))
sketch11.addConstraint(Sketcher.Constraint("Parallel", 0, 4))
sketch11.addConstraint(Sketcher.Constraint("Parallel", 2, 6))
sketch11.addConstraint(Sketcher.Constraint("Horizontal", 3, 3, 2, 2))
sketch11.addConstraint(Sketcher.Constraint("Horizontal", 4, 2, 5, 1))
sketch11.addConstraint(Sketcher.Constraint("Horizontal", 7, 3, 6, 2))
sketch11.addConstraint(Sketcher.Constraint("Radius", 1, 5.5))
sketch11.addConstraint(Sketcher.Constraint("Radius", 3, 4.4))
sketch11.addConstraint(Sketcher.Constraint("DistanceY", 1, 3, -1, 1, 30.0))
sketch11.addConstraint(Sketcher.Constraint("DistanceY", 3, 3, -1, 1, 13.9))
sketch11.addConstraint(Sketcher.Constraint("Distance", 0, 15.387729))
sketch11.setExpression("Constraints[19]", "Params.sketch11_radius")
sketch11.setExpression("Constraints[20]", "Params.sketch11_radius2")
pad6 = body.newObject("PartDesign::Pad", "Pad005")
pad6.Profile = sketch11
pad6.setExpression("Length", "Params.pad6_length")
pad6.Reversed = True

sketch12 = body.newObject("Sketcher::SketchObject", "Sketch011")
sketch12.AttachmentSupport = (doc.getObject("XZ_Plane"), [""])
sketch12.MapMode = "FlatFace"
sketch12.AttachmentOffset = App.Placement(V(0, 0, -1), App.Rotation())
sketch12.addGeometry(Part.LineSegment(V(-9, -9, 0), V(-9, 3, 0)), False)
sketch12.addGeometry(Part.LineSegment(V(-9, 3, 0), V(41, 3, 0)), False)
sketch12.addGeometry(Part.LineSegment(V(41, 3, 0), V(41, -9, 0)), False)
sketch12.addGeometry(Part.LineSegment(V(41, -9, 0), V(-9, -9, 0)), False)
sketch12.addConstraint(Sketcher.Constraint("Coincident", 0, 2, 1, 1))
sketch12.addConstraint(Sketcher.Constraint("Coincident", 1, 2, 2, 1))
sketch12.addConstraint(Sketcher.Constraint("Coincident", 2, 2, 3, 1))
sketch12.addConstraint(Sketcher.Constraint("Coincident", 3, 2, 0, 1))
sketch12.addConstraint(Sketcher.Constraint("Vertical", 0))
sketch12.addConstraint(Sketcher.Constraint("Horizontal", 1))
sketch12.addConstraint(Sketcher.Constraint("Vertical", 2))
sketch12.addConstraint(Sketcher.Constraint("Horizontal", 3))
sketch12.addConstraint(Sketcher.Constraint("DistanceX", 1, 1, 1, 2, 50.0))
sketch12.addConstraint(Sketcher.Constraint("DistanceY", 0, 1, 0, 2, 12.0))
sketch12.addConstraint(Sketcher.Constraint("DistanceX", 0, 2, -1, 1, 9.0))
sketch12.addConstraint(Sketcher.Constraint("DistanceY", -1, 1, 0, 2, 3.0))
sketch12.setExpression("Constraints[8]", "Params.sketch12_width")
sketch12.setExpression("Constraints[9]", "Params.sketch12_height")
pocket6 = body.newObject("PartDesign::Pocket", "Pocket005")
pocket6.Profile = sketch12
pocket6.setExpression("Length", "Params.pocket6_length")
pocket6.Reversed = True

sketch13 = body.newObject("Sketcher::SketchObject", "Sketch012")
sketch13.AttachmentSupport = (doc.getObject("YZ_Plane"), [""])
sketch13.MapMode = "FlatFace"
sketch13.AttachmentOffset = App.Placement(V(0, 0, -9), App.Rotation())
sketch13.addGeometry(Part.LineSegment(V(2, 3.5, 0), V(-2, 3.5, 0)), False)
sketch13.addGeometry(Part.LineSegment(V(-2, 3.5, 0), V(-2, -3.5, 0)), False)
sketch13.addGeometry(Part.LineSegment(V(-2, -3.5, 0), V(2, -3.5, 0)), False)
sketch13.addGeometry(Part.LineSegment(V(2, -3.5, 0), V(2, 3.5, 0)), False)
sketch13.addConstraint(Sketcher.Constraint("Coincident", 0, 2, 1, 1))
sketch13.addConstraint(Sketcher.Constraint("Coincident", 1, 2, 2, 1))
sketch13.addConstraint(Sketcher.Constraint("Coincident", 2, 2, 3, 1))
sketch13.addConstraint(Sketcher.Constraint("Coincident", 3, 2, 0, 1))
sketch13.addConstraint(Sketcher.Constraint("Horizontal", 0))
sketch13.addConstraint(Sketcher.Constraint("Vertical", 1))
sketch13.addConstraint(Sketcher.Constraint("Horizontal", 2))
sketch13.addConstraint(Sketcher.Constraint("Vertical", 3))
sketch13.addConstraint(Sketcher.Constraint("Symmetric", 0, 2, 2, 2, -1, 1))
sketch13.addConstraint(Sketcher.Constraint("DistanceX", 0, 2, 0, 1, 4.0))
sketch13.addConstraint(Sketcher.Constraint("DistanceY", 1, 2, 1, 1, 7.0))
sketch13.setExpression("Constraints[9]", "Params.sketch13_width")
sketch13.setExpression("Constraints[10]", "Params.sketch13_height")
pocket7 = body.newObject("PartDesign::Pocket", "Pocket006")
pocket7.Profile = sketch13
pocket7.setExpression("Length", "Params.pocket7_length")

doc.recompute()
